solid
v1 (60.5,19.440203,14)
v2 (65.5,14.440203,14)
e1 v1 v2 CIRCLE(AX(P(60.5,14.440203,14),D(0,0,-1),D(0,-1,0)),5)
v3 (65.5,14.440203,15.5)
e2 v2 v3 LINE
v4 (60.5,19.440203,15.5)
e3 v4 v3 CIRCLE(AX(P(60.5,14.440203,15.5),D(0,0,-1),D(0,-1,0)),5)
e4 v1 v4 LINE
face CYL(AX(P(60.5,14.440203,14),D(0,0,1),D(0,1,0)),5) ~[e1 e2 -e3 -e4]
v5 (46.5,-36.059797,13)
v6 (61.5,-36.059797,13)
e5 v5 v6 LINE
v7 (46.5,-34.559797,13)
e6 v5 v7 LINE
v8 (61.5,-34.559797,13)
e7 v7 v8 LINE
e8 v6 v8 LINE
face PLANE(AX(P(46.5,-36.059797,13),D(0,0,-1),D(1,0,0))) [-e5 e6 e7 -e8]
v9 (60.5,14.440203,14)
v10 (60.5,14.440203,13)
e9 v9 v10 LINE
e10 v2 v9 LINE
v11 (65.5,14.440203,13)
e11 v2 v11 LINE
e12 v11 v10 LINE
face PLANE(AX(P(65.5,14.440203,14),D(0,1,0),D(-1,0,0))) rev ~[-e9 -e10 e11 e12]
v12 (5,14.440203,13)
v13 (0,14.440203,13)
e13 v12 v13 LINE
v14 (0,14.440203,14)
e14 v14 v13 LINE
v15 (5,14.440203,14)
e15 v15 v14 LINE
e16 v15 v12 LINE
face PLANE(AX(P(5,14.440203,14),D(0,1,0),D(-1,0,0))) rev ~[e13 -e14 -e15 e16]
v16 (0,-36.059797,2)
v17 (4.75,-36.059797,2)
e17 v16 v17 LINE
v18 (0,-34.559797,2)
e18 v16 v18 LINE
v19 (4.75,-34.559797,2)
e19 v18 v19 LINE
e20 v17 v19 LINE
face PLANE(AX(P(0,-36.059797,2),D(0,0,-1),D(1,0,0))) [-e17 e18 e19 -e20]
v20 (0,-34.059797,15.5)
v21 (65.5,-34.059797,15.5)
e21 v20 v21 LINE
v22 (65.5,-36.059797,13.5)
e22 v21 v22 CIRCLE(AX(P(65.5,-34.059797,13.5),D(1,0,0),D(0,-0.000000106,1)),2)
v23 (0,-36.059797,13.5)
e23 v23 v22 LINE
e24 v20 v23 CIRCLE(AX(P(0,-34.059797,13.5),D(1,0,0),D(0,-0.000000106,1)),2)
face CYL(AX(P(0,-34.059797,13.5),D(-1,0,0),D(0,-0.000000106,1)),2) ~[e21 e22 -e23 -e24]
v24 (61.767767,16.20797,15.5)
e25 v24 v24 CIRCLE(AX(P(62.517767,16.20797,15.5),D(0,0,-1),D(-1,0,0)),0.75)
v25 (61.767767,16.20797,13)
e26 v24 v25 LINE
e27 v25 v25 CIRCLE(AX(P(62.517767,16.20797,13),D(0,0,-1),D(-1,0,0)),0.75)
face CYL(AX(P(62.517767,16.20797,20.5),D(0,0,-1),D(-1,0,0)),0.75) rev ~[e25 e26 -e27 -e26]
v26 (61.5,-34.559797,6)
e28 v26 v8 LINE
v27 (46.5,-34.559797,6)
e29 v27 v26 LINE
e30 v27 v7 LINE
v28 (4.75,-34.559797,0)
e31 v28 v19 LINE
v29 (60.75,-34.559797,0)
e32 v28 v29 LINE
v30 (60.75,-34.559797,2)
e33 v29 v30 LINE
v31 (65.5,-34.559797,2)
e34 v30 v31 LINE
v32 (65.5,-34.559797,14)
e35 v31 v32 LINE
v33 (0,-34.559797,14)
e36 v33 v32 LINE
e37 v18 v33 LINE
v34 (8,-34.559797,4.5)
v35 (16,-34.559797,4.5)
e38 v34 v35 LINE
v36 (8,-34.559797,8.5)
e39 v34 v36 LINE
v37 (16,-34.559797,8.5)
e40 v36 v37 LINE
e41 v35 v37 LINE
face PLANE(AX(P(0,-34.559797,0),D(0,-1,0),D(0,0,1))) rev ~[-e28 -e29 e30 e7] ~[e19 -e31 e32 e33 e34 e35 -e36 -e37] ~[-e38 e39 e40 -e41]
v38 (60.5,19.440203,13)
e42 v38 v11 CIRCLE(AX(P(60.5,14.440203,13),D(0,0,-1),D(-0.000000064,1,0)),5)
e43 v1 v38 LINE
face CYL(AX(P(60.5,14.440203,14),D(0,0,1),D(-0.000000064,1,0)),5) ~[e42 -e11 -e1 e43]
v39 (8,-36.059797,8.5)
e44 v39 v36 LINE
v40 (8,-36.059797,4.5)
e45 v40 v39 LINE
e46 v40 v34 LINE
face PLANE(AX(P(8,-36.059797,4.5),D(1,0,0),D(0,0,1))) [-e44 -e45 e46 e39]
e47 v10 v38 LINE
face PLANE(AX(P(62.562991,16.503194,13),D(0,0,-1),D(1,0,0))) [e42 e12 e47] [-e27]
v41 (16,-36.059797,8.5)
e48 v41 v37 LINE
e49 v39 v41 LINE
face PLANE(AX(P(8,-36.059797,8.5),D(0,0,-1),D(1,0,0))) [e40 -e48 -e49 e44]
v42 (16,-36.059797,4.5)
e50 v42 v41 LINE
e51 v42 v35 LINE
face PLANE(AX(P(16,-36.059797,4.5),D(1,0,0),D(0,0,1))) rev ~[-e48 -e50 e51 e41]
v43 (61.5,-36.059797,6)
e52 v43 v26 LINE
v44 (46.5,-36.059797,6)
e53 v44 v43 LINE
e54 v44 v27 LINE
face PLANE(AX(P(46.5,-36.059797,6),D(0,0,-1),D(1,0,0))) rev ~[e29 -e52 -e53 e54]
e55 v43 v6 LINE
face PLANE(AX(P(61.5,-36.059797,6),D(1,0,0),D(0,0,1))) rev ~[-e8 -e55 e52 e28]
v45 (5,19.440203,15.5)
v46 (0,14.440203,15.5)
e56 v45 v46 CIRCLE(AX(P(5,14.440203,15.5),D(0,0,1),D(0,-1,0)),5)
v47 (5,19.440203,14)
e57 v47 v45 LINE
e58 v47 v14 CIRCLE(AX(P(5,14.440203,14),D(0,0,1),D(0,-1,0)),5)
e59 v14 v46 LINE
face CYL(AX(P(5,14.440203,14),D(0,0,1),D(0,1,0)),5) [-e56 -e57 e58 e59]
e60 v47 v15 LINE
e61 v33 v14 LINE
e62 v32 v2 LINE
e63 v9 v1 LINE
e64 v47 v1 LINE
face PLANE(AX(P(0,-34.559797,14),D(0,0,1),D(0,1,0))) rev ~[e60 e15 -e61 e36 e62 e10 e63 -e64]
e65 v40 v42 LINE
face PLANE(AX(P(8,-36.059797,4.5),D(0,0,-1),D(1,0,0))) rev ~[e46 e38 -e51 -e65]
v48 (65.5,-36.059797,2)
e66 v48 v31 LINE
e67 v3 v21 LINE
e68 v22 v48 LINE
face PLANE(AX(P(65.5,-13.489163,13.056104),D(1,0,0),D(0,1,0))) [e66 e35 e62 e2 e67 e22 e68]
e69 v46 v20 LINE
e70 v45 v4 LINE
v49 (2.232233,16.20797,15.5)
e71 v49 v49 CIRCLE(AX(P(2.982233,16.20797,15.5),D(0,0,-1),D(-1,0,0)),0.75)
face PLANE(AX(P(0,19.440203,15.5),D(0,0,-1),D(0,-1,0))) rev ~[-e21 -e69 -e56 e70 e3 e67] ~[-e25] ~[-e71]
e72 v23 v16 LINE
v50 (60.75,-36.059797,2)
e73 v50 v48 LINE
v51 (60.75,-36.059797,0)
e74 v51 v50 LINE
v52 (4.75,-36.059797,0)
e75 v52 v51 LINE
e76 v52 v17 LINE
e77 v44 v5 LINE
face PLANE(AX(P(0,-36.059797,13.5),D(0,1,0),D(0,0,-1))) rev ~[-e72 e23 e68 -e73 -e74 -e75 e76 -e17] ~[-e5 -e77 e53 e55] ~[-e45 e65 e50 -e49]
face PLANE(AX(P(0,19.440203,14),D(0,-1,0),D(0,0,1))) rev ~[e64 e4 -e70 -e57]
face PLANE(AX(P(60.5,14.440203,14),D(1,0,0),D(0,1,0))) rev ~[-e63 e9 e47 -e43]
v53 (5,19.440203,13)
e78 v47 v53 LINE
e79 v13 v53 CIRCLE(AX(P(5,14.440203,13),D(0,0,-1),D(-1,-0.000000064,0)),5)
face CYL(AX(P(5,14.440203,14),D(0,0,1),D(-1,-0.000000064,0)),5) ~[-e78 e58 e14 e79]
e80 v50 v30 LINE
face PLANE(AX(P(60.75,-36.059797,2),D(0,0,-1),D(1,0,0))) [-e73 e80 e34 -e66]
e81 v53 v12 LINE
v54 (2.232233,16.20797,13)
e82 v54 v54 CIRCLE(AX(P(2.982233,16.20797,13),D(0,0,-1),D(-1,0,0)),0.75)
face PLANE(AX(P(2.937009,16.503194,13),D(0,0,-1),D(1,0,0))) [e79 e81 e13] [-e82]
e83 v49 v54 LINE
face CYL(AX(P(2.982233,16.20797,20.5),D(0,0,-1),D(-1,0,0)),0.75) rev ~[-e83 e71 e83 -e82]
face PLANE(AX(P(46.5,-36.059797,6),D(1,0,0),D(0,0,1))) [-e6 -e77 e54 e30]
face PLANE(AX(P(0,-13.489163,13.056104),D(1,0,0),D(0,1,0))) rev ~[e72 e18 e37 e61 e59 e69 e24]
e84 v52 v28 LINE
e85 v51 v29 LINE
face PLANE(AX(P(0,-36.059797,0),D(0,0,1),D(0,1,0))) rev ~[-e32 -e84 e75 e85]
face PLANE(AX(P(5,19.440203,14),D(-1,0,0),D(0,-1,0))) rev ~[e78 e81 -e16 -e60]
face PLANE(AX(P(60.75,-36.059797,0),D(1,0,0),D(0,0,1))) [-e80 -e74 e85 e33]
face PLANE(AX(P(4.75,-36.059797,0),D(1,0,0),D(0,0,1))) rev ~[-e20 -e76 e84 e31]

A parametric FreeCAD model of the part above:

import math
import FreeCAD as App
import Part
import Sketcher


def edges_at(feature, points):
    """Names of the edges that pass closest to the given points."""
    edges = feature.Shape.Edges
    near = lambda p: min(range(len(edges)), key=lambda i: edges[i].distToShape(Part.Vertex(*p))[0])
    return sorted({f"Edge{near(p) + 1}" for p in points})

doc = App.newDocument("Part")
body = doc.addObject("PartDesign::Body", "Body")

# Sketch on YZ plane
sketch1 = doc.addObject("Sketcher::SketchObject", "Sketch")
body.addObject(sketch1)
sketch1.AttachmentSupport = (doc.YZ_Plane, [""])
sketch1.MapMode = "FlatFace"
sketch1.addGeometry([
    Part.LineSegment(App.Vector(-36.1, 0, 0), App.Vector(-34.6, 0, 0)),  # 0
    Part.LineSegment(App.Vector(-34.6, 0, 0), App.Vector(-34.6, 14, 0)),  # 1
    Part.LineSegment(App.Vector(-34.6, 14, 0), App.Vector(19.4, 14, 0)),  # 2
    Part.LineSegment(App.Vector(19.4, 14, 0), App.Vector(19.4, 15.5, 0)),  # 3
    Part.LineSegment(App.Vector(19.4, 15.5, 0), App.Vector(-34.1, 15.5, 0)),  # 4
    Part.ArcOfCircle(Part.Circle(App.Vector(-34.1, 13.5, 0), App.Vector(0, 0, 1), 2), math.radians(90), math.radians(180)),  # 5
    Part.LineSegment(App.Vector(-36.1, 13.5, 0), App.Vector(-36.1, 0, 0)),  # 6
], False)
sketch1.addConstraint([
    Sketcher.Constraint("Coincident", 0, 2, 1, 1),
    Sketcher.Constraint("Coincident", 1, 2, 2, 1),
    Sketcher.Constraint("Coincident", 2, 2, 3, 1),
    Sketcher.Constraint("Coincident", 3, 2, 4, 1),
    Sketcher.Constraint("Tangent", 4, 2, 5, 1),
    Sketcher.Constraint("Tangent", 5, 2, 6, 1),
    Sketcher.Constraint("Coincident", 6, 2, 0, 1),
    Sketcher.Constraint("Horizontal", 0),
    Sketcher.Constraint("Vertical", 1),
    Sketcher.Constraint("Horizontal", 2),
    Sketcher.Constraint("Vertical", 3),
    Sketcher.Constraint("Horizontal", 4),
    Sketcher.Constraint("Vertical", 6),
    Sketcher.Constraint("PointOnObject", 0, 2, -1),
    Sketcher.Constraint("Equal", 0, 3),
    Sketcher.Constraint("Radius", 5, 2.0),
    Sketcher.Constraint("DistanceX", 2, 1, 2, 2, 54.0),
    Sketcher.Constraint("DistanceY", 1, 1, 1, 2, 14.0),
    Sketcher.Constraint("DistanceX", 0, 1, 0, 2, 1.5),
    Sketcher.Constraint("DistanceX", 5, 3, -1, 1, 34.059797),
])
pad1 = doc.addObject("PartDesign::Pad", "Pad")
body.addObject(pad1)
pad1.Profile = sketch1
pad1.Length = 65.5
doc.recompute()

fillet = doc.addObject("PartDesign::Fillet", "Fillet")
body.addObject(fillet)
fillet.Base = (pad1, edges_at(pad1, [(65.5, 19.44, 14.75), (0, 19.44, 14.75)]))
fillet.Radius = 5

# Sketch on XY plane
sketch2 = doc.addObject("Sketcher::SketchObject", "Sketch001")
body.addObject(sketch2)
sketch2.AttachmentSupport = (doc.XY_Plane, [""])
sketch2.MapMode = "FlatFace"
sketch2.AttachmentOffset = App.Placement(App.Vector(0, 0, 14), App.Rotation())
sketch2.addGeometry([
    Part.ArcOfCircle(Part.Circle(App.Vector(5, 14.4, 0), App.Vector(0, 0, 1), 5), math.radians(90), math.radians(180)),  # 0
    Part.LineSegment(App.Vector(5, 19.4, 0), App.Vector(5, 14.4, 0)),  # 1
    Part.LineSegment(App.Vector(5, 14.4, 0), App.Vector(0, 14.4, 0)),  # 2
    Part.ArcOfCircle(Part.Circle(App.Vector(60.5, 14.4, 0), App.Vector(0, 0, 1), 5), math.radians(0), math.radians(90)),  # 3
    Part.LineSegment(App.Vector(65.5, 14.4, 0), App.Vector(60.5, 14.4, 0)),  # 4
    Part.LineSegment(App.Vector(60.5, 14.4, 0), App.Vector(60.5, 19.4, 0)),  # 5
], False)
sketch2.addConstraint([
    Sketcher.Constraint("Coincident", 0, 1, 1, 1),
    Sketcher.Constraint("Coincident", 1, 2, 2, 1),
    Sketcher.Constraint("Coincident", 2, 2, 0, 2),
    Sketcher.Constraint("Coincident", 3, 1, 4, 1),
    Sketcher.Constraint("Coincident", 4, 2, 5, 1),
    Sketcher.Constraint("Coincident", 5, 2, 3, 2),
    Sketcher.Constraint("Vertical", 1),
    Sketcher.Constraint("Horizontal", 2),
    Sketcher.Constraint("Horizontal", 4),
    Sketcher.Constraint("Vertical", 5),
    Sketcher.Constraint("Coincident", 1, 2, 0, 3),
    Sketcher.Constraint("Coincident", 4, 2, 3, 3),
    Sketcher.Constraint("Equal", 0, 3),
    Sketcher.Constraint("PointOnObject", 2, 2, -2),
    Sketcher.Constraint("Horizontal", 0, 3, 3, 3),
    Sketcher.Constraint("Radius", 0, 5.0),
    Sketcher.Constraint("DistanceX", -1, 1, 3, 3, 60.5),
    Sketcher.Constraint("DistanceY", -1, 1, 0, 3, 14.440203),
])
pad2 = doc.addObject("PartDesign::Pad", "Pad001")
body.addObject(pad2)
pad2.Profile = sketch2
pad2.Length = 1
pad2.Reversed = True

# Sketch on XY plane
sketch3 = doc.addObject("Sketcher::SketchObject", "Sketch002")
body.addObject(sketch3)
sketch3.AttachmentSupport = (doc.XY_Plane, [""])
sketch3.MapMode = "FlatFace"
sketch3.AttachmentOffset = App.Placement(App.Vector(0, 0, 15.5), App.Rotation())
sketch3.addGeometry([
    Part.Circle(App.Vector(3, 16.2, 0), App.Vector(0, 0, 1), 0.8),
    Part.Circle(App.Vector(62.5, 16.2, 0), App.Vector(0, 0, 1), 0.8),
], False)
sketch3.addConstraint([
    Sketcher.Constraint("Equal", 0, 1),
    Sketcher.Constraint("Horizontal", 0, 3, 1, 3),
    Sketcher.Constraint("Diameter", 0, 1.5),
    Sketcher.Constraint("DistanceY", -1, 1, 0, 3, 16.20797),
    Sketcher.Constraint("DistanceX", -1, 1, 0, 3, 2.982233),
    Sketcher.Constraint("DistanceX", -1, 1, 1, 3, 62.517767),
])
doc.recompute()
hole = doc.addObject("PartDesign::Hole", "Hole")
body.addObject(hole)
hole.Profile = sketch3
hole.ThreadType = "None"
hole.Diameter = 1.5
hole.DepthType = "Dimension"
hole.Depth = 5
hole.DrillPoint = "Flat"

# Sketch on XZ plane
sketch4 = doc.addObject("Sketcher::SketchObject", "Sketch003")
body.addObject(sketch4)
sketch4.AttachmentSupport = (doc.XZ_Plane, [""])
sketch4.MapMode = "FlatFace"
sketch4.AttachmentOffset = App.Placement(App.Vector(0, 0, 36.059797), App.Rotation())
sketch4.addGeometry([
    Part.LineSegment(App.Vector(46.5, 13, 0), App.Vector(46.5, 6, 0)),  # 0
    Part.LineSegment(App.Vector(46.5, 6, 0), App.Vector(61.5, 6, 0)),  # 1
    Part.LineSegment(App.Vector(61.5, 6, 0), App.Vector(61.5, 13, 0)),  # 2
    Part.LineSegment(App.Vector(61.5, 13, 0), App.Vector(46.5, 13, 0)),  # 3
    Part.LineSegment(App.Vector(8, 8.5, 0), App.Vector(8, 4.5, 0)),  # 4
    Part.LineSegment(App.Vector(8, 4.5, 0), App.Vector(16, 4.5, 0)),  # 5
    Part.LineSegment(App.Vector(16, 4.5, 0), App.Vector(16, 8.5, 0)),  # 6
    Part.LineSegment(App.Vector(16, 8.5, 0), App.Vector(8, 8.5, 0)),  # 7
], False)
sketch4.addConstraint([
    Sketcher.Constraint("Coincident", 0, 2, 1, 1),
    Sketcher.Constraint("Coincident", 1, 2, 2, 1),
    Sketcher.Constraint("Coincident", 2, 2, 3, 1),
    Sketcher.Constraint("Coincident", 3, 2, 0, 1),
    Sketcher.Constraint("Coincident", 4, 2, 5, 1),
    Sketcher.Constraint("Coincident", 5, 2, 6, 1),
    Sketcher.Constraint("Coincident", 6, 2, 7, 1),
    Sketcher.Constraint("Coincident", 7, 2, 4, 1),
    Sketcher.Constraint("Vertical", 0),
    Sketcher.Constraint("Horizontal", 1),
    Sketcher.Constraint("Vertical", 2),
    Sketcher.Constraint("Horizontal", 3),
    Sketcher.Constraint("Vertical", 4),
    Sketcher.Constraint("Horizontal", 5),
    Sketcher.Constraint("Vertical", 6),
    Sketcher.Constraint("Horizontal", 7),
    Sketcher.Constraint("DistanceX", 1, 1, 1, 2, 15.0),
    Sketcher.Constraint("DistanceX", 5, 1, 5, 2, 8.0),
    Sketcher.Constraint("DistanceY", 0, 2, 0, 1, 7.0),
    Sketcher.Constraint("DistanceY", 4, 2, 4, 1, 4.0),
    Sketcher.Constraint("DistanceY", -1, 1, 0, 2, 6.0),
    Sketcher.Constraint("DistanceX", -1, 1, 4, 2, 8.0),
    Sketcher.Constraint("DistanceX", -1, 1, 0, 2, 46.5),
    Sketcher.Constraint("DistanceY", -1, 1, 4, 2, 4.5),
])
pocket1 = doc.addObject("PartDesign::Pocket", "Pocket")
body.addObject(pocket1)
pocket1.Profile = sketch4
pocket1.Length = 5

# Sketch on XZ plane
sketch5 = doc.addObject("Sketcher::SketchObject", "Sketch004")
body.addObject(sketch5)
sketch5.AttachmentSupport = (doc.XZ_Plane, [""])
sketch5.MapMode = "FlatFace"
sketch5.AttachmentOffset = App.Placement(App.Vector(0, 0, 36.059797), App.Rotation())
sketch5.addGeometry([
    Part.LineSegment(App.Vector(0, 2, 0), App.Vector(0, 0, 0)),  # 0
    Part.LineSegment(App.Vector(0, 0, 0), App.Vector(4.8, 0, 0)),  # 1
    Part.LineSegment(App.Vector(4.8, 0, 0), App.Vector(4.8, 2, 0)),  # 2
    Part.LineSegment(App.Vector(4.8, 2, 0), App.Vector(0, 2, 0)),  # 3
    Part.LineSegment(App.Vector(60.8, 2, 0), App.Vector(60.8, 0, 0)),  # 4
    Part.LineSegment(App.Vector(60.8, 0, 0), App.Vector(65.5, 0, 0)),  # 5
    Part.LineSegment(App.Vector(65.5, 0, 0), App.Vector(65.5, 2, 0)),  # 6
    Part.LineSegment(App.Vector(65.5, 2, 0), App.Vector(60.8, 2, 0)),  # 7
], False)
sketch5.addConstraint([
    Sketcher.Constraint("Coincident", 0, 2, 1, 1),
    Sketcher.Constraint("Coincident", 1, 2, 2, 1),
    Sketcher.Constraint("Coincident", 2, 2, 3, 1),
    Sketcher.Constraint("Coincident", 3, 2, 0, 1),
    Sketcher.Constraint("Coincident", 4, 2, 5, 1),
    Sketcher.Constraint("Coincident", 5, 2, 6, 1),
    Sketcher.Constraint("Coincident", 6, 2, 7, 1),
    Sketcher.Constraint("Coincident", 7, 2, 4, 1),
    Sketcher.Constraint("Vertical", 0),
    Sketcher.Constraint("Horizontal", 1),
    Sketcher.Constraint("Vertical", 2),
    Sketcher.Constraint("Horizontal", 3),
    Sketcher.Constraint("Vertical", 4),
    Sketcher.Constraint("Horizontal", 5),
    Sketcher.Constraint("Vertical", 6),
    Sketcher.Constraint("Horizontal", 7),
    Sketcher.Constraint("Coincident", 0, 2, -1, 1),
    Sketcher.Constraint("PointOnObject", 4, 2, -1),
    Sketcher.Constraint("Horizontal", 3, 2, 6, 2),
    Sketcher.Constraint("Equal", 3, 5),
    Sketcher.Constraint("DistanceY", 0, 2, 0, 1, 2.0),
    Sketcher.Constraint("DistanceX", 1, 2, 4, 2, 56.0),
    Sketcher.Constraint("DistanceX", 1, 1, 1, 2, 4.75),
])
pocket2 = doc.addObject("PartDesign::Pocket", "Pocket001")
body.addObject(pocket2)
pocket2.Profile = sketch5
pocket2.Length = 5

doc.recompute()
